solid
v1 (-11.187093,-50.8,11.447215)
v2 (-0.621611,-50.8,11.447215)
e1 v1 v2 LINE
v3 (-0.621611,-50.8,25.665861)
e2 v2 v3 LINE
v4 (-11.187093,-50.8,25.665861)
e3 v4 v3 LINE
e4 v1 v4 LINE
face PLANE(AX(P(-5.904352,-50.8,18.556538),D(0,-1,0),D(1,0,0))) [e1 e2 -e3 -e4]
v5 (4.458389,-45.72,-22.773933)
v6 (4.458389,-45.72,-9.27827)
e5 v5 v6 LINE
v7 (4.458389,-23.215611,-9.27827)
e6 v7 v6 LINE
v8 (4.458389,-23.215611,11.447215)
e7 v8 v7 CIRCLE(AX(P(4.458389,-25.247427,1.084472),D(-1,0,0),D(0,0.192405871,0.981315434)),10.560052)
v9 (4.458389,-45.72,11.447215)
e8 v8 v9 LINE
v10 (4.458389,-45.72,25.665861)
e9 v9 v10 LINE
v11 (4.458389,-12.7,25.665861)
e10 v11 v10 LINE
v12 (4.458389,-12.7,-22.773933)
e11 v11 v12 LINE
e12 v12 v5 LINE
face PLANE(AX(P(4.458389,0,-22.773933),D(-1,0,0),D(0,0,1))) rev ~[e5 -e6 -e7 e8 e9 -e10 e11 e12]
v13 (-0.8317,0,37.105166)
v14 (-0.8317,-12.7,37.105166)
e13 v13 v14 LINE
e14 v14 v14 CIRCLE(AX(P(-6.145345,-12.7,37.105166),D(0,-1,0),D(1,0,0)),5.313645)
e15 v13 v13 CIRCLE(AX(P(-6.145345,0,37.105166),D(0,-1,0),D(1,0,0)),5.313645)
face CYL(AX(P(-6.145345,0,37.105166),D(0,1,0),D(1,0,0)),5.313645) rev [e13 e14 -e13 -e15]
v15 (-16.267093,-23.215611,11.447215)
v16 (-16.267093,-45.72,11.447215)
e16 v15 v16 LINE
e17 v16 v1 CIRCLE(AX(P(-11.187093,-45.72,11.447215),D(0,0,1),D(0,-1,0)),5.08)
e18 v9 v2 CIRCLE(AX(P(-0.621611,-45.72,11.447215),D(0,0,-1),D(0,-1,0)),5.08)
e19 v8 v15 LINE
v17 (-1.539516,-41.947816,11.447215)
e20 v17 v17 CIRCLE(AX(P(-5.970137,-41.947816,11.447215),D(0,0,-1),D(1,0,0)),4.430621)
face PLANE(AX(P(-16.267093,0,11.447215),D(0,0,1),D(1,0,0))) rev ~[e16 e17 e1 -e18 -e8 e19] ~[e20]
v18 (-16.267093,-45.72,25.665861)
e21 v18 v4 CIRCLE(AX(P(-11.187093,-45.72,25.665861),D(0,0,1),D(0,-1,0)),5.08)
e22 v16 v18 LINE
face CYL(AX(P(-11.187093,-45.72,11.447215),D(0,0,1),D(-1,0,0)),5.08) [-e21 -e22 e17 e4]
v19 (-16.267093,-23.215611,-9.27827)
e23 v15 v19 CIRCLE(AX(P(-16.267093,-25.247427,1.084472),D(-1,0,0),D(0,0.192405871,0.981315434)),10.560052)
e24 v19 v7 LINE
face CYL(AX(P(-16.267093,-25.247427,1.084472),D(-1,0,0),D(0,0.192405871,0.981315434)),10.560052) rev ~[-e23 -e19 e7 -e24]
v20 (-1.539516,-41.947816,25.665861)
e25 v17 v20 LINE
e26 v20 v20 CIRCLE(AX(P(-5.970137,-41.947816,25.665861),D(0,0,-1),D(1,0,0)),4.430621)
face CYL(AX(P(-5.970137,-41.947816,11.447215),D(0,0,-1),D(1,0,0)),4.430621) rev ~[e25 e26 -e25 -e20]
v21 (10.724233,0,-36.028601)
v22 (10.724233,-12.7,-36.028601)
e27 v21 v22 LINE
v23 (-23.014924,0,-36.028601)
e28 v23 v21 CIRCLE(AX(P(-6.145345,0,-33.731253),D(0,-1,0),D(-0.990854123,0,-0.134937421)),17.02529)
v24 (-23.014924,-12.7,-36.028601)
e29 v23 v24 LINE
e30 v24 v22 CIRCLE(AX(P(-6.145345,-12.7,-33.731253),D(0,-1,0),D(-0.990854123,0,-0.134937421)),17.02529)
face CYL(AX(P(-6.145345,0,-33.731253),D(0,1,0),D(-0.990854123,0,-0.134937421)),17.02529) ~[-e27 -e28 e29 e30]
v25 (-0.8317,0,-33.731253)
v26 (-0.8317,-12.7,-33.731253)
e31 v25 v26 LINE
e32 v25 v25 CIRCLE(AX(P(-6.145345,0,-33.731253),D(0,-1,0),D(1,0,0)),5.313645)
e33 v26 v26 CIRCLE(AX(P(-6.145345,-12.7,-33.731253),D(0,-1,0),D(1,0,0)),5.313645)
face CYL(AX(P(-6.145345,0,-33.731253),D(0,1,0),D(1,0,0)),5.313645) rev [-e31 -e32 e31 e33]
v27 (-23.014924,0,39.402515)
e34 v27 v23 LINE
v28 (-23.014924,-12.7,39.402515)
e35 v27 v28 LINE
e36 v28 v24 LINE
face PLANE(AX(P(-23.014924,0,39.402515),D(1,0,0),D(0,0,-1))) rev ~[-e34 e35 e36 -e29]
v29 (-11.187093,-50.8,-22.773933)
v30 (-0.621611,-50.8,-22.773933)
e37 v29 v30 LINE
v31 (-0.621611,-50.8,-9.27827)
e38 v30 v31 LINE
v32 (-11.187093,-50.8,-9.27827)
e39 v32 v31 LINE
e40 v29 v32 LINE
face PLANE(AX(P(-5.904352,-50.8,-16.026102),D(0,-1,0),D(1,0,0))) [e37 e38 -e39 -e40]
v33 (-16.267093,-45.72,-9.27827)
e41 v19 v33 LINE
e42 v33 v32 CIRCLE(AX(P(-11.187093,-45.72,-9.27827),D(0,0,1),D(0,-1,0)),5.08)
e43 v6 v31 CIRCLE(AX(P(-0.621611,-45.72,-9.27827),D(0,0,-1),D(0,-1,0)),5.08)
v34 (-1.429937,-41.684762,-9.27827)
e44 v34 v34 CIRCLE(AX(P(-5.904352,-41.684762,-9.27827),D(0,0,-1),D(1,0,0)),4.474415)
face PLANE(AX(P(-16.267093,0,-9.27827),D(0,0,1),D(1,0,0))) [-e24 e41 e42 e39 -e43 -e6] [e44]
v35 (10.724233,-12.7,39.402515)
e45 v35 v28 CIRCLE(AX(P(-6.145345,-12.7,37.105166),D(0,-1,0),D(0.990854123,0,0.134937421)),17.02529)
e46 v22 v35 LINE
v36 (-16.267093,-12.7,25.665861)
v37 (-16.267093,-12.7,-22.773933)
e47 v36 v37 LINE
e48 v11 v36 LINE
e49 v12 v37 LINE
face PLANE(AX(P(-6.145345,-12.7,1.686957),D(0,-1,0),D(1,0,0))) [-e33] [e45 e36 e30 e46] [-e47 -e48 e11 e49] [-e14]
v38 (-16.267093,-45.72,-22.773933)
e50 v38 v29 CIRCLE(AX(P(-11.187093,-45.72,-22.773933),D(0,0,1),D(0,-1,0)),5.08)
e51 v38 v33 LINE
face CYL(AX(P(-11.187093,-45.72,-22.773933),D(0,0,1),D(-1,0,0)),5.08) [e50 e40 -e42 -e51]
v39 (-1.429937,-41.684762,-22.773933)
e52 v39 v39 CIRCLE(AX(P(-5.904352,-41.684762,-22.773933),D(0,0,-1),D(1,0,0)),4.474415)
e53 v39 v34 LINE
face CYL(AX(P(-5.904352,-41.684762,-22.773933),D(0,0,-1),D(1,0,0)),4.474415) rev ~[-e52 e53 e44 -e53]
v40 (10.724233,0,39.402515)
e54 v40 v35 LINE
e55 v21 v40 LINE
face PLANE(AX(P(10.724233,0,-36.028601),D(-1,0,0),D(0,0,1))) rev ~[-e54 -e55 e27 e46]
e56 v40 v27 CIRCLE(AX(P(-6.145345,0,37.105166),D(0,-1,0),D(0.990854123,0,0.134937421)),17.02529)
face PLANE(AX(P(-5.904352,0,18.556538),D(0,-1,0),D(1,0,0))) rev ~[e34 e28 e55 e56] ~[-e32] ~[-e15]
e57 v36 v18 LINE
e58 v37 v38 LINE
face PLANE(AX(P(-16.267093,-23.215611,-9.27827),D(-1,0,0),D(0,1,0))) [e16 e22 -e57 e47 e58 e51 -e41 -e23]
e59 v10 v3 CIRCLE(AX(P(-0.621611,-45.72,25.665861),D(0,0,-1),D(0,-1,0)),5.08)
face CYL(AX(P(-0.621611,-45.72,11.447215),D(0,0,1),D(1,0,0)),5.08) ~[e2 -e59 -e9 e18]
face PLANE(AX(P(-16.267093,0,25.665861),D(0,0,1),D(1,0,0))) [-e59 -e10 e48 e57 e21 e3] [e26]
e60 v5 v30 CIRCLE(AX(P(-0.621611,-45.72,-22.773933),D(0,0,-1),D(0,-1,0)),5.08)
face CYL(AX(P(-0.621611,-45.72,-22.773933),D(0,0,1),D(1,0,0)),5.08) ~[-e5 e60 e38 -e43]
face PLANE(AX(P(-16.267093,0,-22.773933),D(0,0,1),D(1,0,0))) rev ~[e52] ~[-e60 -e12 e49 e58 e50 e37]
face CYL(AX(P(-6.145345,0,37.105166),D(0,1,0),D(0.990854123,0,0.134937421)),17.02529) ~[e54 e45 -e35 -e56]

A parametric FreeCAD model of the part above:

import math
import FreeCAD as App
import Part
import Sketcher
from FreeCAD import Vector
Q = App.Units.Quantity


def edges_at(feature, points):
    """Names of the edges that pass closest to the given points."""
    edges = feature.Shape.Edges
    near = lambda p: min(range(len(edges)), key=lambda i: edges[i].distToShape(Part.Vertex(*p))[0])
    return sorted({f"Edge{near(p) + 1}" for p in points})


def add_polygon(sketch, points):
    """Adds a closed chain of lines whose ends are joined by coincident constraints."""
    first, n = sketch.GeometryCount, len(points)
    for a, b in zip(points, points[1:] + points[:1]):
        sketch.addGeometry(Part.LineSegment(App.Vector(*a, 0), App.Vector(*b, 0)), False)
    for i in range(n):
        sketch.addConstraint(Sketcher.Constraint("Coincident", first + i, 2, first + (i + 1) % n, 1))

doc = App.newDocument("Part")
body = doc.addObject("PartDesign::Body", "Body")

# Sketch on XZ plane
sketch1 = body.newObject("Sketcher::SketchObject", "Sketch")
sketch1.AttachmentSupport = (doc.getObject("XZ_Plane"), [""])
sketch1.MapMode = "FlatFace"
sketch1.addGeometry(Part.ArcOfCircle(Part.Circle(Vector(-6.145345, 37.105166, 0), Vector(0, 0, 1), 17.02529), math.radians(7.755001), math.radians(172.244999)), False)
sketch1.addGeometry(Part.LineSegment(Vector(-23.014924, 39.402515, 0), Vector(-23.014924, -36.028601, 0)), False)
sketch1.addGeometry(Part.ArcOfCircle(Part.Circle(Vector(-6.145345, -33.731253, 0), Vector(0, 0, 1), 17.02529), math.radians(-172.244999), math.radians(-7.755001)), False)
sketch1.addGeometry(Part.LineSegment(Vector(10.724233, -36.028601, 0), Vector(10.724233, 39.402515, 0)), False)
sketch1.addGeometry(Part.Circle(Vector(-6.145345, -33.731253, 0), Vector(0, 0, 1), 5.313645), False)
sketch1.addGeometry(Part.Circle(Vector(-6.145345, 37.105166, 0), Vector(0, 0, 1), 5.313645), False)
sketch1.addConstraint(Sketcher.Constraint("Coincident", 0, 2, 1, 1))
sketch1.addConstraint(Sketcher.Constraint("Coincident", 1, 2, 2, 1))
sketch1.addConstraint(Sketcher.Constraint("Coincident", 2, 2, 3, 1))
sketch1.addConstraint(Sketcher.Constraint("Coincident", 3, 2, 0, 1))
sketch1.addConstraint(Sketcher.Constraint("Vertical", 1))
sketch1.addConstraint(Sketcher.Constraint("Vertical", 3))
sketch1.addConstraint(Sketcher.Constraint("Coincident", 4, 3, 2, 3))
sketch1.addConstraint(Sketcher.Constraint("Coincident", 5, 3, 0, 3))
sketch1.addConstraint(Sketcher.Constraint("Equal", 0, 2))
sketch1.addConstraint(Sketcher.Constraint("Equal", 4, 5))
sketch1.addConstraint(Sketcher.Constraint("Horizontal", 1, 2, 2, 2))
sketch1.addConstraint(Sketcher.Constraint("Horizontal", 0, 2, 3, 2))
sketch1.addConstraint(Sketcher.Constraint("Diameter", 4, 10.627291))
sketch1.addConstraint(Sketcher.Constraint("Radius", 0, 17.02529))
sketch1.addConstraint(Sketcher.Constraint("DistanceY", 1, 2, -1, 1, 36.028601))
sketch1.addConstraint(Sketcher.Constraint("DistanceY", 1, 2, 1, 1, 75.431116))
sketch1.addConstraint(Sketcher.Constraint("DistanceY", 2, 3, 0, 3, 70.836419))
sketch1.addConstraint(Sketcher.Constraint("DistanceX", 0, 3, -1, 1, 6.145345))
pad1 = body.newObject("PartDesign::Pad", "Pad")
pad1.Profile = sketch1
pad1.Length = Q("0.5 in")

# Sketch on XZ plane
sketch2 = body.newObject("Sketcher::SketchObject", "Sketch001")
sketch2.AttachmentSupport = (doc.getObject("XZ_Plane"), [""])
sketch2.MapMode = "FlatFace"
add_polygon(sketch2, [(-16.267093, 25.665861), (-16.267093, 11.447215), (4.458389, 11.447215), (4.458389, 25.665861)])  # lines 0-3
add_polygon(sketch2, [(-16.267093, -9.27827), (-16.267093, -22.773933), (4.458389, -22.773933), (4.458389, -9.27827)])  # lines 4-7
sketch2.addConstraint(Sketcher.Constraint("Vertical", 0))
sketch2.addConstraint(Sketcher.Constraint("Horizontal", 1))
sketch2.addConstraint(Sketcher.Constraint("Vertical", 2))
sketch2.addConstraint(Sketcher.Constraint("Horizontal", 3))
sketch2.addConstraint(Sketcher.Constraint("Vertical", 4))
sketch2.addConstraint(Sketcher.Constraint("Horizontal", 5))
sketch2.addConstraint(Sketcher.Constraint("Vertical", 6))
sketch2.addConstraint(Sketcher.Constraint("Horizontal", 7))
sketch2.addConstraint(Sketcher.Constraint("Vertical", 3, 2, 4, 2))
sketch2.addConstraint(Sketcher.Constraint("Vertical", 2, 2, 5, 2))
sketch2.addConstraint(Sketcher.Constraint("DistanceX", 1, 1, 1, 2, 20.725482))
sketch2.addConstraint(Sketcher.Constraint("DistanceY", 0, 2, 0, 1, 14.218646))
sketch2.addConstraint(Sketcher.Constraint("DistanceY", 4, 2, 4, 1, 13.495662))
sketch2.addConstraint(Sketcher.Constraint("DistanceX", -1, 1, 1, 2, 4.458389))
sketch2.addConstraint(Sketcher.Constraint("DistanceY", -1, 1, 2, 2, 25.665861))
sketch2.addConstraint(Sketcher.Constraint("DistanceY", 6, 2, -1, 1, 9.27827))
pad2 = body.newObject("PartDesign::Pad", "Pad001")
pad2.Profile = sketch2
pad2.Length = Q("2 in")
doc.recompute()

fillet = body.newObject("PartDesign::Fillet", "Fillet")
fillet.Base = (pad2, edges_at(pad2, [
    (4.458, -50.8, 18.557),
    (-16.267, -50.8, 18.557),
    (4.458, -50.8, -16.026),
    (-16.267, -50.8, -16.026),
]))
fillet.Radius = Q("0.2 in")

# Sketch on XY plane
sketch3 = body.newObject("Sketcher::SketchObject", "Sketch002")
sketch3.AttachmentSupport = (doc.getObject("XY_Plane"), [""])
sketch3.MapMode = "FlatFace"
sketch3.AttachmentOffset = App.Placement(Vector(0, 0, -22.773933), App.Rotation())
sketch3.addGeometry(Part.Circle(Vector(-5.904352, -41.684762, 0), Vector(0, 0, 1), 4.474415), False)
sketch3.addConstraint(Sketcher.Constraint("Diameter", 0, 8.948829))
sketch3.addConstraint(Sketcher.Constraint("DistanceY", 0, 3, -1, 1, 41.684762))
sketch3.addConstraint(Sketcher.Constraint("DistanceX", 0, 3, -1, 1, 5.904352))
pocket1 = body.newObject("PartDesign::Pocket", "Pocket")
pocket1.Profile = sketch3
pocket1.Length = Q("1 in")
pocket1.Reversed = True

# Sketch on XY plane
sketch4 = body.newObject("Sketcher::SketchObject", "Sketch003")
sketch4.AttachmentSupport = (doc.getObject("XY_Plane"), [""])
sketch4.MapMode = "FlatFace"
sketch4.AttachmentOffset = App.Placement(Vector(0, 0, 11.447215), App.Rotation())
sketch4.addGeometry(Part.Circle(Vector(-5.970137, -41.947816, 0), Vector(0, 0, 1), 4.430621), False)
sketch4.addConstraint(Sketcher.Constraint("Diameter", 0, 8.861242))
sketch4.addConstraint(Sketcher.Constraint("DistanceX", 0, 3, -1, 1, 5.970137))
sketch4.addConstraint(Sketcher.Constraint("DistanceY", 0, 3, -1, 1, 41.947816))
pocket2 = body.newObject("PartDesign::Pocket", "Pocket001")
pocket2.Profile = sketch4
pocket2.Length = Q("1 in")
pocket2.Reversed = True

# Sketch on XY plane
sketch5 = body.newObject("Sketcher::SketchObject", "Sketch004")
sketch5.AttachmentSupport = (doc.getObject("XY_Plane"), [""])
sketch5.MapMode = "FlatFace"
sketch5.AttachmentOffset = App.Placement(Vector(0, 0, -9.27827), App.Rotation())
add_polygon(sketch5, [(-16.267093, -12.7), (-16.267093, -23.215611), (4.458389, -23.215611), (4.458389, -12.7)])  # lines 0-3
sketch5.addConstraint(Sketcher.Constraint("Vertical", 0))
sketch5.addConstraint(Sketcher.Constraint("Horizontal", 1))
sketch5.addConstraint(Sketcher.Constraint("Vertical", 2))
sketch5.addConstraint(Sketcher.Constraint("Horizontal", 3))
sketch5.addConstraint(Sketcher.Constraint("DistanceY", 2, 2, -1, 1, Q("0.5 in")))
sketch5.addConstraint(Sketcher.Constraint("DistanceX", 1, 1, 1, 2, 20.725482))
sketch5.addConstraint(Sketcher.Constraint("DistanceY", 0, 2, 0, 1, 10.515611))
sketch5.addConstraint(Sketcher.Constraint("DistanceX", -1, 1, 1, 2, 4.458389))
pad3 = body.newObject("PartDesign::Pad", "Pad002")
pad3.Profile = sketch5
pad3.Length = Q("1 in")

# Sketch on YZ plane
sketch6 = body.newObject("Sketcher::SketchObject", "Sketch005")
sketch6.AttachmentSupport = (doc.getObject("YZ_Plane"), [""])
sketch6.MapMode = "FlatFace"
sketch6.AttachmentOffset = App.Placement(Vector(0, 0, -16.267093), App.Rotation())
sketch6.addGeometry(Part.LineSegment(Vector(-23.215611, -9.27827, 0), Vector(-23.215611, 11.447215, 0)), False)
sketch6.addGeometry(Part.ArcOfCircle(Part.Circle(Vector(-25.247427, 1.084472, 0), Vector(0, 0, 1), 10.560052), math.radians(-78.906779), math.radians(78.906779)), False)
sketch6.addConstraint(Sketcher.Constraint("Coincident", 0, 1, 1, 1))
sketch6.addConstraint(Sketcher.Constraint("Coincident", 1, 2, 0, 2))
sketch6.addConstraint(Sketcher.Constraint("Vertical", 0))
sketch6.addConstraint(Sketcher.Constraint("Radius", 1, 10.560052))
sketch6.addConstraint(Sketcher.Constraint("DistanceY", 0, 1, 0, 2, 20.725485))
sketch6.addConstraint(Sketcher.Constraint("DistanceX", 0, 1, -1, 1, 23.215611))
sketch6.addConstraint(Sketcher.Constraint("DistanceY", 0, 1, -1, 1, 9.27827))
pocket3 = body.newObject("PartDesign::Pocket", "Pocket002")
pocket3.Profile = sketch6
pocket3.Length = Q("1 in")
pocket3.Reversed = True

doc.recompute()
